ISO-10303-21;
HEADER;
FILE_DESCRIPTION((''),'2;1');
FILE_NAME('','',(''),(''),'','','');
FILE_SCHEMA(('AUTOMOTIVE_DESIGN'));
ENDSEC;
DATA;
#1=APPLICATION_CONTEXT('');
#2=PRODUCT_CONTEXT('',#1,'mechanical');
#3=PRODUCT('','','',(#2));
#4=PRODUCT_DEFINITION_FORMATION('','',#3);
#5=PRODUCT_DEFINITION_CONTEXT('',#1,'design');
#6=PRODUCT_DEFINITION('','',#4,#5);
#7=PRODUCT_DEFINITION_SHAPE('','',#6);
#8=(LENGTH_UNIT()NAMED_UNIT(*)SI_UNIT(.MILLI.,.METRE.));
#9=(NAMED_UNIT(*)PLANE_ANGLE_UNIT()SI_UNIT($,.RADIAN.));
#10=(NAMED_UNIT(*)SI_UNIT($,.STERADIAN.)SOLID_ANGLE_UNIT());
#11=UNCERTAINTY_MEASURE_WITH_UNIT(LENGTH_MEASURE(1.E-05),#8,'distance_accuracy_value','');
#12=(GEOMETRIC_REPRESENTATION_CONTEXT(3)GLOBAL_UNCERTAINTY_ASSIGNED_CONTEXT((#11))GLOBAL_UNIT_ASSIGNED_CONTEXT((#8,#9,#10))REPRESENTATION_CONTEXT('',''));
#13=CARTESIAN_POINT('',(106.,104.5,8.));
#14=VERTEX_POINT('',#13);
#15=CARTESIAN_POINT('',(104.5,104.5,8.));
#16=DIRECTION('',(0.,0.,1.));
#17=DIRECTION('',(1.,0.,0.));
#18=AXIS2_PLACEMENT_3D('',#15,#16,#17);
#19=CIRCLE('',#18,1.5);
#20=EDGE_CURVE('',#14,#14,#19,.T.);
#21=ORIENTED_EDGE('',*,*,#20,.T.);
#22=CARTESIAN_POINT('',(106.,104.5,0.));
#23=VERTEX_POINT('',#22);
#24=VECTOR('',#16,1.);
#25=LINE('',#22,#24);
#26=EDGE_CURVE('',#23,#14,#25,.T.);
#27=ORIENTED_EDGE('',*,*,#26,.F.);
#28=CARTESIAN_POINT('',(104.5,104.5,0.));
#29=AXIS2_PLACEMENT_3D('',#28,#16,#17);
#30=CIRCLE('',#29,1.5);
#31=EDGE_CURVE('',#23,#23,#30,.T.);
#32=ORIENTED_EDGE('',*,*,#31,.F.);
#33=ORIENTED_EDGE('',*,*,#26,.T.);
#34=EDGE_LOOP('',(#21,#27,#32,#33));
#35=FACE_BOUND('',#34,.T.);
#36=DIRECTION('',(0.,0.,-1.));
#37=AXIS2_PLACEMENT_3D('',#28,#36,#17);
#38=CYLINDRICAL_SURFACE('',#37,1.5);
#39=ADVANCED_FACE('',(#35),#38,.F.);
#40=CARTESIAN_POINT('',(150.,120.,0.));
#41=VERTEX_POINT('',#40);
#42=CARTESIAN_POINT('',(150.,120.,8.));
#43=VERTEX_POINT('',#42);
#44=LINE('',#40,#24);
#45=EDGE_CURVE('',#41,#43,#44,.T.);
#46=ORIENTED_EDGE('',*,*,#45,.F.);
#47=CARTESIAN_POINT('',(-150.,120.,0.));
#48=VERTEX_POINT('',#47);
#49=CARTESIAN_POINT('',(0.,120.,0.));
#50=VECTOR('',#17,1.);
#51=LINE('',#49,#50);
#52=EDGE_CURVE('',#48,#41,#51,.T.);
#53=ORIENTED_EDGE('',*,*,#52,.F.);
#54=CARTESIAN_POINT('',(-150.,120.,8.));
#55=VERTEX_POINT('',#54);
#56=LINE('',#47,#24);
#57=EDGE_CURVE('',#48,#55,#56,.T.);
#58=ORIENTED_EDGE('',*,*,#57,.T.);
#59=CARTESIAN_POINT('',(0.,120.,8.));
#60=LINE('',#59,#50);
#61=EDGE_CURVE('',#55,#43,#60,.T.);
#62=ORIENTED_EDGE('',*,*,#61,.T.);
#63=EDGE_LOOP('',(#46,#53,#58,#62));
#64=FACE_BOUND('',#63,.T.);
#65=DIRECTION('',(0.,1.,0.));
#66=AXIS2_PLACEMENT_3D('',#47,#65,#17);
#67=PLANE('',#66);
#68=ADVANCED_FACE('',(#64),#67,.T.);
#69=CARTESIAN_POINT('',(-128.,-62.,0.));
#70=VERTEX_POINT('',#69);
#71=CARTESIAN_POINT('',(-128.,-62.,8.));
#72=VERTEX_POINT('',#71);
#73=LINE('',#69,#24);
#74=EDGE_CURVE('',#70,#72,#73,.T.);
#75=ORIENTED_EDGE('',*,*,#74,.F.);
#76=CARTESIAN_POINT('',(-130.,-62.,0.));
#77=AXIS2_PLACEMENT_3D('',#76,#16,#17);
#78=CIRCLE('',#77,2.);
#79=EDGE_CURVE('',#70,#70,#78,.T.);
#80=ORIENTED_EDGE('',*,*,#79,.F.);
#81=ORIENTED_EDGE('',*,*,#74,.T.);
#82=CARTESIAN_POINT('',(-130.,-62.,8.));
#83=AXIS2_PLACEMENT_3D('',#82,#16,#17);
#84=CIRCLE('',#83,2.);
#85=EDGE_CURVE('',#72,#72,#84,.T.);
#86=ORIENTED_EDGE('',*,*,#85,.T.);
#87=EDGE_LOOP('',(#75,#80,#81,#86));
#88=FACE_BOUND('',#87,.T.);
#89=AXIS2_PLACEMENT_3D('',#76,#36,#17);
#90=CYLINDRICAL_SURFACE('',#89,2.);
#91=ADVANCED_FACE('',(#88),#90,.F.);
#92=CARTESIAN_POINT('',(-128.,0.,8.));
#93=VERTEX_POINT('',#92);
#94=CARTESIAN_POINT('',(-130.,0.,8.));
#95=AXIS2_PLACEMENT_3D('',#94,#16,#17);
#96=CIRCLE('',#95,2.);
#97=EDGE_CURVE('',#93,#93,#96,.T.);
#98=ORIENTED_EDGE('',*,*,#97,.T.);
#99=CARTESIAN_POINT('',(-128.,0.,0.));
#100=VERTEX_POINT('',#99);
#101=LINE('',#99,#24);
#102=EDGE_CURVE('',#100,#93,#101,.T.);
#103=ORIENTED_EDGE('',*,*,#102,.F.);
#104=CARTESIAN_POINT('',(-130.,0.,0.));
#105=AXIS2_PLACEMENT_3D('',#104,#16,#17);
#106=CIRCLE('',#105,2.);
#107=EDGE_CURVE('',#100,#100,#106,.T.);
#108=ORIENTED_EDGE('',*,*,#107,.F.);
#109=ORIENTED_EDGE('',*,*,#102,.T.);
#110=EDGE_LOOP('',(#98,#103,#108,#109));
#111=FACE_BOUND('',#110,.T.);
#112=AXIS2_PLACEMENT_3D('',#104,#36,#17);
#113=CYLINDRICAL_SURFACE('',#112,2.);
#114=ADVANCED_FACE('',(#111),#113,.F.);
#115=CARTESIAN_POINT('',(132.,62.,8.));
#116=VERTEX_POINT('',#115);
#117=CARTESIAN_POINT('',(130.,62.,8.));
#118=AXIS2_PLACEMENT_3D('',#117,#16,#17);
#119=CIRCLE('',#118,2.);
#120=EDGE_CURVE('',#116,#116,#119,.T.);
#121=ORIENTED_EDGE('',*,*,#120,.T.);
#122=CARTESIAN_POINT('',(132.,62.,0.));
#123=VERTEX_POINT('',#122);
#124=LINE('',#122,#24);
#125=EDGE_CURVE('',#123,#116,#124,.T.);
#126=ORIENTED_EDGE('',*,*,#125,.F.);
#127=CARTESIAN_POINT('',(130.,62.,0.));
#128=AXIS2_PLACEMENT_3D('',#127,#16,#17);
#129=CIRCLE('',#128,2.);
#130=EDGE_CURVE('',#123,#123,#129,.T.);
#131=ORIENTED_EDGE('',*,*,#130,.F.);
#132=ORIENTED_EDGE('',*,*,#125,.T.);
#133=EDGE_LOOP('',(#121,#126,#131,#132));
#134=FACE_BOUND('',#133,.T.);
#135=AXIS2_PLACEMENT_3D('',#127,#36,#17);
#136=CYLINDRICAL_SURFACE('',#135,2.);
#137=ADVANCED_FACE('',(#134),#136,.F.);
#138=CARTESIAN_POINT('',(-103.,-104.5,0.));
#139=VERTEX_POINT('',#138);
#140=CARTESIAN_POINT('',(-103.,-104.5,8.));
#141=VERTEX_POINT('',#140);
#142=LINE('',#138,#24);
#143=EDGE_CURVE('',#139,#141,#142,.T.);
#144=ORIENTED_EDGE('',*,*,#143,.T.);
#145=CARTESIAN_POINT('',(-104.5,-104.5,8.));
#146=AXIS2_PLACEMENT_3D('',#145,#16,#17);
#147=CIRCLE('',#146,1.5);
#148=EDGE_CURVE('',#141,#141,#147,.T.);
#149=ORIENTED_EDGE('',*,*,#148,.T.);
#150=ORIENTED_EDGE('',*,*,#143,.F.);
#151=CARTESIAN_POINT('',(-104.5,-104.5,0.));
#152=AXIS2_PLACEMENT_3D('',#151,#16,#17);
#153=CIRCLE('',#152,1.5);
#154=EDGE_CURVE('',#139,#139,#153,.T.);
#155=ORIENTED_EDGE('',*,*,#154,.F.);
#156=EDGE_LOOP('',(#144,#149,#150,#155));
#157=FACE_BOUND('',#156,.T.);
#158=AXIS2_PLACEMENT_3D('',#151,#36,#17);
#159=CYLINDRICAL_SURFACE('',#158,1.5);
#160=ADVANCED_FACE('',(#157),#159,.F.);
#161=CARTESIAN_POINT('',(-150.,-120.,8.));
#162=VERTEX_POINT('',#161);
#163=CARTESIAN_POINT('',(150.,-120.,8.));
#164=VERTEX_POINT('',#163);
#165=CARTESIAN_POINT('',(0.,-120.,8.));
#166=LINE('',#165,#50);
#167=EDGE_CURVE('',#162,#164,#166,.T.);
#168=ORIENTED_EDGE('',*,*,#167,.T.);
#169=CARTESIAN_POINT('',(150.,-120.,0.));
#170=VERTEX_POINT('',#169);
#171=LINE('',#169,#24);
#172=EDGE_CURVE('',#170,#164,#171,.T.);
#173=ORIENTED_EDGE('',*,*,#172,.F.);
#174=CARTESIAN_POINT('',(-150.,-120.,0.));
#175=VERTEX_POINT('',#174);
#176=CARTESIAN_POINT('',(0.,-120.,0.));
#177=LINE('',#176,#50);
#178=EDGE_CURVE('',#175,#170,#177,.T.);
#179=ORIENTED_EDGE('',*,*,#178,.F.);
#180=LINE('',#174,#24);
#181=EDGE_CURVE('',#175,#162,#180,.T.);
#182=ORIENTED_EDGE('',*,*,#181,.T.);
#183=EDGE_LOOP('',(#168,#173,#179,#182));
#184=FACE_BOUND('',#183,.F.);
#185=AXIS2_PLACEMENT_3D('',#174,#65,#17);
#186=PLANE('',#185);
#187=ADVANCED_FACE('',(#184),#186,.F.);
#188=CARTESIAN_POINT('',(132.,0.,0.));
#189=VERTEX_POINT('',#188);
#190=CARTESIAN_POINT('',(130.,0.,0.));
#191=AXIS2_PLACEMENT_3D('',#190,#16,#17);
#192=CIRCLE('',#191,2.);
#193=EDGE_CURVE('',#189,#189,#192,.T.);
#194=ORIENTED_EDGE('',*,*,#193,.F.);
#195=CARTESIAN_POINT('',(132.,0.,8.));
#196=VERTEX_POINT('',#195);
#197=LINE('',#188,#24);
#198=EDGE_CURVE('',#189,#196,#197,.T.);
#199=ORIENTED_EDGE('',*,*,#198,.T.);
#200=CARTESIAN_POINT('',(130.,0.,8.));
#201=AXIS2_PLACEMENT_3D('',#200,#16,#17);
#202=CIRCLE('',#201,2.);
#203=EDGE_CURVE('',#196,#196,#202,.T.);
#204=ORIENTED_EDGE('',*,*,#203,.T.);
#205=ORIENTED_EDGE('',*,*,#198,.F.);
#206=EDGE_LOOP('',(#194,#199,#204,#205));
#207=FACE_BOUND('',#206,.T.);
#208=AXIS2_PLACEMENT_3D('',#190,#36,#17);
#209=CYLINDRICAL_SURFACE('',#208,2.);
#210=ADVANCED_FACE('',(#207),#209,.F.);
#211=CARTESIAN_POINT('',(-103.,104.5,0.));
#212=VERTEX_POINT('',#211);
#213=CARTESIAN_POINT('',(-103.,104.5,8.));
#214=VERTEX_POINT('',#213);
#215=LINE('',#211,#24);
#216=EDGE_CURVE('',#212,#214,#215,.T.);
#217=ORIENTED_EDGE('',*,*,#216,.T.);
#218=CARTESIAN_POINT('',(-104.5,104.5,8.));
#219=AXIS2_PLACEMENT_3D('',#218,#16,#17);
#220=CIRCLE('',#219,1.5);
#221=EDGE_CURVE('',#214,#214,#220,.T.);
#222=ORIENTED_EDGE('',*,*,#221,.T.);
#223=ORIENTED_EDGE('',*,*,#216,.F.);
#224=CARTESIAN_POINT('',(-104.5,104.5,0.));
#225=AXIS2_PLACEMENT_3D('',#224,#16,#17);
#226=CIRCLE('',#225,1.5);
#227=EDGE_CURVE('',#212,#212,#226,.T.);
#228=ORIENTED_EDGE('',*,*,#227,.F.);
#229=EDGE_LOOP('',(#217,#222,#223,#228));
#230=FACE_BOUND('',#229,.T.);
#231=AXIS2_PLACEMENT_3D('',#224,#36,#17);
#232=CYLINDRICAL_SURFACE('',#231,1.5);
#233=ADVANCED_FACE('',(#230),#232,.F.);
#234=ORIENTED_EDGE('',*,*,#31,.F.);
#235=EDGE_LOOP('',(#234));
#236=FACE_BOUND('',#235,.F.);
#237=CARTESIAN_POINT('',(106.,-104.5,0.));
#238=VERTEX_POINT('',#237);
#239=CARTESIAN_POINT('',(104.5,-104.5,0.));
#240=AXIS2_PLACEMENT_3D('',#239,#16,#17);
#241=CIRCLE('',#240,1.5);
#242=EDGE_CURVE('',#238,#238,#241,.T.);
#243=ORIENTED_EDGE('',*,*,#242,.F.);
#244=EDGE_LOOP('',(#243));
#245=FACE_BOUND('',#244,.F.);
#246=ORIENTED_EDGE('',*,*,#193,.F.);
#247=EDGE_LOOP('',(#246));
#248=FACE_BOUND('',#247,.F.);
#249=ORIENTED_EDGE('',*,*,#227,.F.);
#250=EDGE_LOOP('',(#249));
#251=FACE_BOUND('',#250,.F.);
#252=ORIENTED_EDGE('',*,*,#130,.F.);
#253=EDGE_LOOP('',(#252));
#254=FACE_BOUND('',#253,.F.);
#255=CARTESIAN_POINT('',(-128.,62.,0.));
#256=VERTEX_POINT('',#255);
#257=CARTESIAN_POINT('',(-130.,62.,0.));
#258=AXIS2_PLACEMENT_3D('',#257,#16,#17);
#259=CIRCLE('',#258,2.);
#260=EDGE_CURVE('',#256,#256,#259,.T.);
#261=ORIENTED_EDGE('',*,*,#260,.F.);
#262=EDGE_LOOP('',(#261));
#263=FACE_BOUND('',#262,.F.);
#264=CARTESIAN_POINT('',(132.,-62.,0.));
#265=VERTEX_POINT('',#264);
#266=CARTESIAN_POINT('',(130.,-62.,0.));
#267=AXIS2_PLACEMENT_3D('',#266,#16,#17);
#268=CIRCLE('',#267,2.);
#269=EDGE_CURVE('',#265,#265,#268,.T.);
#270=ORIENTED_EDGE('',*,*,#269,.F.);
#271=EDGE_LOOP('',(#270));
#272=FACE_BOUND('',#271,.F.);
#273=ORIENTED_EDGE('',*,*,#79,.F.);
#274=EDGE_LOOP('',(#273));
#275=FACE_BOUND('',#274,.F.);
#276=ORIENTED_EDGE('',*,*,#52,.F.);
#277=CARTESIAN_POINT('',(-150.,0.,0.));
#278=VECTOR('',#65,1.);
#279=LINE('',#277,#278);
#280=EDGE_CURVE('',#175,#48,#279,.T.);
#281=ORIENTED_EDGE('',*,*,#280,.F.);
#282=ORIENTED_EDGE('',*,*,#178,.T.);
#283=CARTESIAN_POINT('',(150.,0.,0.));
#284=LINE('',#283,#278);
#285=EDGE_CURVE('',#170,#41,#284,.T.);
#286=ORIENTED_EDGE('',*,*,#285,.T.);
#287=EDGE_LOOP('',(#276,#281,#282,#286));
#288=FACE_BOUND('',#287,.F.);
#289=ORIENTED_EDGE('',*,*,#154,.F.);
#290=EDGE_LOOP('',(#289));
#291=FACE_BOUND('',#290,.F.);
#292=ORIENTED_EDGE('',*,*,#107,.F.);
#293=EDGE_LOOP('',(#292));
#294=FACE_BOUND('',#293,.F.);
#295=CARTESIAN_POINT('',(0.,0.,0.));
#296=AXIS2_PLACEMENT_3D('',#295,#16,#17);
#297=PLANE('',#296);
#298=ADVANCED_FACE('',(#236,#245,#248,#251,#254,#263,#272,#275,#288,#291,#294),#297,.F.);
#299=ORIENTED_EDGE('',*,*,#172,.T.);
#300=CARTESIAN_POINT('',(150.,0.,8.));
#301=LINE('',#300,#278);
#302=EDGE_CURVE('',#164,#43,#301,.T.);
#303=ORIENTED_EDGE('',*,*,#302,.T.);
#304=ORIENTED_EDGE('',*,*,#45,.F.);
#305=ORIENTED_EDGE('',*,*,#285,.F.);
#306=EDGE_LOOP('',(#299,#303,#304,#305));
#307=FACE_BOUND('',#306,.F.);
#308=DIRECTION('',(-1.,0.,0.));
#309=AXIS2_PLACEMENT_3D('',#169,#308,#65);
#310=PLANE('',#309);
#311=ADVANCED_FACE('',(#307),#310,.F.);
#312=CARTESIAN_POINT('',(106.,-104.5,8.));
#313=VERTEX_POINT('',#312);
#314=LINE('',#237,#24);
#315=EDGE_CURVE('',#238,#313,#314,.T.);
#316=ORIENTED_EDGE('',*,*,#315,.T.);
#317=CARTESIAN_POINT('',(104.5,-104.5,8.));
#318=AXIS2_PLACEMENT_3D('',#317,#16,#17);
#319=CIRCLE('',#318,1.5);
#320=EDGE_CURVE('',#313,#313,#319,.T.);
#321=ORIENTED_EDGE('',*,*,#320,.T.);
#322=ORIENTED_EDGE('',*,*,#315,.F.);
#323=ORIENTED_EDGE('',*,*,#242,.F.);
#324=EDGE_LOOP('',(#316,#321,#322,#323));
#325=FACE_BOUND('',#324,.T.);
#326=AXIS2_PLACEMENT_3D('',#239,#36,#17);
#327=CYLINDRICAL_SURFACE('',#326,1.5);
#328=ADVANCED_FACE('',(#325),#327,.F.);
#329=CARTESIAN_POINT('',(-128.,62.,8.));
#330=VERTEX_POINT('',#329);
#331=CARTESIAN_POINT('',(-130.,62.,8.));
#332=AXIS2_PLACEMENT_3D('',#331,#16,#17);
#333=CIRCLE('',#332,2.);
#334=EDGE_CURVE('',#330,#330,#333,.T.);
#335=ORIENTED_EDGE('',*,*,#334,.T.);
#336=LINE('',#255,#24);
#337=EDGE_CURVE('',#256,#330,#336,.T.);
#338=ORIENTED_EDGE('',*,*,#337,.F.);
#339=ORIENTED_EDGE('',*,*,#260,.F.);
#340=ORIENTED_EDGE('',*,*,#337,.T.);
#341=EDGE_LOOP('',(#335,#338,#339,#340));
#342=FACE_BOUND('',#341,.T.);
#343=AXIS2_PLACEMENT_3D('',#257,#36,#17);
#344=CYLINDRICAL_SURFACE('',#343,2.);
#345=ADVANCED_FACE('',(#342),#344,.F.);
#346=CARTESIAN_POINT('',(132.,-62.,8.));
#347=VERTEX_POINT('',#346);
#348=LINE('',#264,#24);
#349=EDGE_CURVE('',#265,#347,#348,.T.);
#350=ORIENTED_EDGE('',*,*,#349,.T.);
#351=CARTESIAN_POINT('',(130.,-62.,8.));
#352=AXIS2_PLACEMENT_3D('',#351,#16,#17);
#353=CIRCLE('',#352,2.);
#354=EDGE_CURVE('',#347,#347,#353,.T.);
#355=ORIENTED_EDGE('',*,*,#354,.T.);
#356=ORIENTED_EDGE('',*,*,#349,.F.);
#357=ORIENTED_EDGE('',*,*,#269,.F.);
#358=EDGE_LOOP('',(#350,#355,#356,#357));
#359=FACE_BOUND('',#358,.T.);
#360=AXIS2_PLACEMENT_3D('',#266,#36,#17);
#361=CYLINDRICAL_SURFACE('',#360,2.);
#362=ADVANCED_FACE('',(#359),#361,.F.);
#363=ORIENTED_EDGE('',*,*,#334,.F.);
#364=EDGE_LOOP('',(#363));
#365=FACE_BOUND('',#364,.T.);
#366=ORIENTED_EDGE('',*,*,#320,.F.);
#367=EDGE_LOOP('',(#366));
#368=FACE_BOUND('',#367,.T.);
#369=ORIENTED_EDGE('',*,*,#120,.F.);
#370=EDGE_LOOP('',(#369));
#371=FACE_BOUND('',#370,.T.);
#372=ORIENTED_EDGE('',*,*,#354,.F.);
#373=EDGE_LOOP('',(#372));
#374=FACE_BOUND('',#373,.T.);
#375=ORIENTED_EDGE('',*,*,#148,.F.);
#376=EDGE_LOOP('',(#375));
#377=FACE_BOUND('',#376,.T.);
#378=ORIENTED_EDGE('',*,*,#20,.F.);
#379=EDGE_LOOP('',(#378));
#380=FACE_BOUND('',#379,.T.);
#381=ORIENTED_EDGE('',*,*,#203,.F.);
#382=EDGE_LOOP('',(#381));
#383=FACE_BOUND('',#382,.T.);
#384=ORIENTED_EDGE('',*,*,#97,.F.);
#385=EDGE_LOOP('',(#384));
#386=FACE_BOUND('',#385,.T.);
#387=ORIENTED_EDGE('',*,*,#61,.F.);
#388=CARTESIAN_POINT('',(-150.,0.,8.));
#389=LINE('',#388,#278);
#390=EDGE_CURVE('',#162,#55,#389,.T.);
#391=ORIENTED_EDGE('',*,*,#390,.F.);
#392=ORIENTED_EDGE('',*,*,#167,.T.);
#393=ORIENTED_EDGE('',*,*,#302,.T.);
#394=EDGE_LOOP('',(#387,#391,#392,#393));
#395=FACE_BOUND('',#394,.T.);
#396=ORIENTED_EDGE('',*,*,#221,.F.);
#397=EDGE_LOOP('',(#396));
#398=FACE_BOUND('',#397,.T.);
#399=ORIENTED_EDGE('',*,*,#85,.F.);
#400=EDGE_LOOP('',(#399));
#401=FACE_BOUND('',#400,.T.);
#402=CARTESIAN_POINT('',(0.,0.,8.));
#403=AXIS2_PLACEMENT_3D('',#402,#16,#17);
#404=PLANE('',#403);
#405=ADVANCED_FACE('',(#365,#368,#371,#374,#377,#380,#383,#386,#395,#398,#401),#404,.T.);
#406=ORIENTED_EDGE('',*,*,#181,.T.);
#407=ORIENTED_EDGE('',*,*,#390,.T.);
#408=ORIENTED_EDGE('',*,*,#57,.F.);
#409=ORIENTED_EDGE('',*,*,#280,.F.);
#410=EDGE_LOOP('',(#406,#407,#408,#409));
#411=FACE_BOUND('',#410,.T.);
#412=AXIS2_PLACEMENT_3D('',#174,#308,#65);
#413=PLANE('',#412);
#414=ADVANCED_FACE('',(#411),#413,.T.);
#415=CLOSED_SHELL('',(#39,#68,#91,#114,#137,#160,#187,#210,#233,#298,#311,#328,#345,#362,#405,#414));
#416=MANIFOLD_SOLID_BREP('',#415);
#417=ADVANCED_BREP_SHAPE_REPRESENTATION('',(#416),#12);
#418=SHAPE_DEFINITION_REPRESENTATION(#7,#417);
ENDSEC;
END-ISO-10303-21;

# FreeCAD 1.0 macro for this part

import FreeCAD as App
import Part
import Sketcher
Q = App.Units.Quantity

doc = App.newDocument("Part")
params = doc.addObject("Spreadsheet::Sheet", "Params")
for row, (alias, value) in enumerate([
    ("sketch1_diameter", "3 mm"),
    ("sketch1_diameter2", "4 mm"),
    ("sketch1_width", "300 mm"),
    ("sketch1_height", "240 mm"),
    ("pad1_length", "8 mm"),
], start=1):
    params.set(f"A{row}", alias)
    params.set(f"B{row}", "=" + value)
    params.setAlias(f"B{row}", alias)

body = doc.addObject("PartDesign::Body", "Body")

sketch1 = body.newObject("Sketcher::SketchObject", "Sketch")
sketch1.AttachmentSupport = (doc.getObject("XY_Plane"), [""])
sketch1.MapMode = "FlatFace"
sketch1.addGeometry([
    Part.LineSegment(App.Vector(-150, 120, 0), App.Vector(-150, -120, 0)),
    Part.LineSegment(App.Vector(-150, -120, 0), App.Vector(150, -120, 0)),
    Part.LineSegment(App.Vector(150, -120, 0), App.Vector(150, 120, 0)),
    Part.LineSegment(App.Vector(150, 120, 0), App.Vector(-150, 120, 0)),
    Part.Circle(App.Vector(-104.5, -104.5, 0), App.Vector(0, 0, 1), 1.5),
    Part.Circle(App.Vector(-130, -62, 0), App.Vector(0, 0, 1), 2),
    Part.Circle(App.Vector(104.5, -104.5, 0), App.Vector(0, 0, 1), 1.5),
    Part.Circle(App.Vector(130, -62, 0), App.Vector(0, 0, 1), 2),
    Part.Circle(App.Vector(-130, 0, 0), App.Vector(0, 0, 1), 2),
    Part.Circle(App.Vector(-130, 62, 0), App.Vector(0, 0, 1), 2),
    Part.Circle(App.Vector(-104.5, 104.5, 0), App.Vector(0, 0, 1), 1.5),
    Part.Circle(App.Vector(130, 0, 0), App.Vector(0, 0, 1), 2),
    Part.Circle(App.Vector(130, 62, 0), App.Vector(0, 0, 1), 2),
    Part.Circle(App.Vector(104.5, 104.5, 0), App.Vector(0, 0, 1), 1.5),
], False)
sketch1.addConstraint([
    Sketcher.Constraint("Coincident", 0, 2, 1, 1),
    Sketcher.Constraint("Coincident", 1, 2, 2, 1),
    Sketcher.Constraint("Coincident", 2, 2, 3, 1),
    Sketcher.Constraint("Coincident", 3, 2, 0, 1),
    Sketcher.Constraint("Vertical", 0),
    Sketcher.Constraint("Horizontal", 1),
    Sketcher.Constraint("Vertical", 2),
    Sketcher.Constraint("Horizontal", 3),
    Sketcher.Constraint("Equal", 4, 6),
    Sketcher.Constraint("Equal", 5, 7),
    Sketcher.Constraint("Equal", 7, 8),
    Sketcher.Constraint("Equal", 8, 9),
    Sketcher.Constraint("Equal", 6, 10),
    Sketcher.Constraint("Equal", 9, 11),
    Sketcher.Constraint("Equal", 11, 12),
    Sketcher.Constraint("Equal", 10, 13),
    Sketcher.Constraint("Symmetric", 7, 3, 9, 3, -1, 1),
    Sketcher.Constraint("Symmetric", 6, 3, 10, 3, -1, 1),
    Sketcher.Constraint("Symmetric", 8, 3, 11, 3, -1, 1),
    Sketcher.Constraint("Symmetric", 5, 3, 12, 3, -1, 1),
    Sketcher.Constraint("Symmetric", 4, 3, 13, 3, -1, 1),
    Sketcher.Constraint("Symmetric", 0, 2, 2, 2, -1, 1),
    Sketcher.Constraint("Symmetric", 4, 3, 6, 3, -2),
    Sketcher.Constraint("Symmetric", 5, 3, 7, 3, -2),
    Sketcher.Constraint("PointOnObject", 8, 3, -1),
    Sketcher.Constraint("Vertical", 5, 3, 8, 3),
    Sketcher.Constraint("Diameter", 4, Q("3 mm")),
    Sketcher.Constraint("Diameter", 5, Q("4 mm")),
    Sketcher.Constraint("DistanceX", 1, 1, 1, 2, Q("300 mm")),
    Sketcher.Constraint("DistanceY", 0, 2, 0, 1, Q("240 mm")),
    Sketcher.Constraint("DistanceX", 5, 3, -1, 1, Q("130 mm")),
    Sketcher.Constraint("DistanceY", 5, 3, -1, 1, Q("62 mm")),
    Sketcher.Constraint("DistanceX", 4, 3, 6, 3, Q("209 mm")),
    Sketcher.Constraint("DistanceY", 4, 3, 10, 3, Q("209 mm")),
])
sketch1.setExpression("Constraints[26]", "Params.sketch1_diameter")
sketch1.setExpression("Constraints[27]", "Params.sketch1_diameter2")
sketch1.setExpression("Constraints[28]", "Params.sketch1_width")
sketch1.setExpression("Constraints[29]", "Params.sketch1_height")
pad1 = body.newObject("PartDesign::Pad", "Pad")
pad1.Profile = sketch1
pad1.setExpression("Length", "Params.pad1_length")

doc.recompute()
